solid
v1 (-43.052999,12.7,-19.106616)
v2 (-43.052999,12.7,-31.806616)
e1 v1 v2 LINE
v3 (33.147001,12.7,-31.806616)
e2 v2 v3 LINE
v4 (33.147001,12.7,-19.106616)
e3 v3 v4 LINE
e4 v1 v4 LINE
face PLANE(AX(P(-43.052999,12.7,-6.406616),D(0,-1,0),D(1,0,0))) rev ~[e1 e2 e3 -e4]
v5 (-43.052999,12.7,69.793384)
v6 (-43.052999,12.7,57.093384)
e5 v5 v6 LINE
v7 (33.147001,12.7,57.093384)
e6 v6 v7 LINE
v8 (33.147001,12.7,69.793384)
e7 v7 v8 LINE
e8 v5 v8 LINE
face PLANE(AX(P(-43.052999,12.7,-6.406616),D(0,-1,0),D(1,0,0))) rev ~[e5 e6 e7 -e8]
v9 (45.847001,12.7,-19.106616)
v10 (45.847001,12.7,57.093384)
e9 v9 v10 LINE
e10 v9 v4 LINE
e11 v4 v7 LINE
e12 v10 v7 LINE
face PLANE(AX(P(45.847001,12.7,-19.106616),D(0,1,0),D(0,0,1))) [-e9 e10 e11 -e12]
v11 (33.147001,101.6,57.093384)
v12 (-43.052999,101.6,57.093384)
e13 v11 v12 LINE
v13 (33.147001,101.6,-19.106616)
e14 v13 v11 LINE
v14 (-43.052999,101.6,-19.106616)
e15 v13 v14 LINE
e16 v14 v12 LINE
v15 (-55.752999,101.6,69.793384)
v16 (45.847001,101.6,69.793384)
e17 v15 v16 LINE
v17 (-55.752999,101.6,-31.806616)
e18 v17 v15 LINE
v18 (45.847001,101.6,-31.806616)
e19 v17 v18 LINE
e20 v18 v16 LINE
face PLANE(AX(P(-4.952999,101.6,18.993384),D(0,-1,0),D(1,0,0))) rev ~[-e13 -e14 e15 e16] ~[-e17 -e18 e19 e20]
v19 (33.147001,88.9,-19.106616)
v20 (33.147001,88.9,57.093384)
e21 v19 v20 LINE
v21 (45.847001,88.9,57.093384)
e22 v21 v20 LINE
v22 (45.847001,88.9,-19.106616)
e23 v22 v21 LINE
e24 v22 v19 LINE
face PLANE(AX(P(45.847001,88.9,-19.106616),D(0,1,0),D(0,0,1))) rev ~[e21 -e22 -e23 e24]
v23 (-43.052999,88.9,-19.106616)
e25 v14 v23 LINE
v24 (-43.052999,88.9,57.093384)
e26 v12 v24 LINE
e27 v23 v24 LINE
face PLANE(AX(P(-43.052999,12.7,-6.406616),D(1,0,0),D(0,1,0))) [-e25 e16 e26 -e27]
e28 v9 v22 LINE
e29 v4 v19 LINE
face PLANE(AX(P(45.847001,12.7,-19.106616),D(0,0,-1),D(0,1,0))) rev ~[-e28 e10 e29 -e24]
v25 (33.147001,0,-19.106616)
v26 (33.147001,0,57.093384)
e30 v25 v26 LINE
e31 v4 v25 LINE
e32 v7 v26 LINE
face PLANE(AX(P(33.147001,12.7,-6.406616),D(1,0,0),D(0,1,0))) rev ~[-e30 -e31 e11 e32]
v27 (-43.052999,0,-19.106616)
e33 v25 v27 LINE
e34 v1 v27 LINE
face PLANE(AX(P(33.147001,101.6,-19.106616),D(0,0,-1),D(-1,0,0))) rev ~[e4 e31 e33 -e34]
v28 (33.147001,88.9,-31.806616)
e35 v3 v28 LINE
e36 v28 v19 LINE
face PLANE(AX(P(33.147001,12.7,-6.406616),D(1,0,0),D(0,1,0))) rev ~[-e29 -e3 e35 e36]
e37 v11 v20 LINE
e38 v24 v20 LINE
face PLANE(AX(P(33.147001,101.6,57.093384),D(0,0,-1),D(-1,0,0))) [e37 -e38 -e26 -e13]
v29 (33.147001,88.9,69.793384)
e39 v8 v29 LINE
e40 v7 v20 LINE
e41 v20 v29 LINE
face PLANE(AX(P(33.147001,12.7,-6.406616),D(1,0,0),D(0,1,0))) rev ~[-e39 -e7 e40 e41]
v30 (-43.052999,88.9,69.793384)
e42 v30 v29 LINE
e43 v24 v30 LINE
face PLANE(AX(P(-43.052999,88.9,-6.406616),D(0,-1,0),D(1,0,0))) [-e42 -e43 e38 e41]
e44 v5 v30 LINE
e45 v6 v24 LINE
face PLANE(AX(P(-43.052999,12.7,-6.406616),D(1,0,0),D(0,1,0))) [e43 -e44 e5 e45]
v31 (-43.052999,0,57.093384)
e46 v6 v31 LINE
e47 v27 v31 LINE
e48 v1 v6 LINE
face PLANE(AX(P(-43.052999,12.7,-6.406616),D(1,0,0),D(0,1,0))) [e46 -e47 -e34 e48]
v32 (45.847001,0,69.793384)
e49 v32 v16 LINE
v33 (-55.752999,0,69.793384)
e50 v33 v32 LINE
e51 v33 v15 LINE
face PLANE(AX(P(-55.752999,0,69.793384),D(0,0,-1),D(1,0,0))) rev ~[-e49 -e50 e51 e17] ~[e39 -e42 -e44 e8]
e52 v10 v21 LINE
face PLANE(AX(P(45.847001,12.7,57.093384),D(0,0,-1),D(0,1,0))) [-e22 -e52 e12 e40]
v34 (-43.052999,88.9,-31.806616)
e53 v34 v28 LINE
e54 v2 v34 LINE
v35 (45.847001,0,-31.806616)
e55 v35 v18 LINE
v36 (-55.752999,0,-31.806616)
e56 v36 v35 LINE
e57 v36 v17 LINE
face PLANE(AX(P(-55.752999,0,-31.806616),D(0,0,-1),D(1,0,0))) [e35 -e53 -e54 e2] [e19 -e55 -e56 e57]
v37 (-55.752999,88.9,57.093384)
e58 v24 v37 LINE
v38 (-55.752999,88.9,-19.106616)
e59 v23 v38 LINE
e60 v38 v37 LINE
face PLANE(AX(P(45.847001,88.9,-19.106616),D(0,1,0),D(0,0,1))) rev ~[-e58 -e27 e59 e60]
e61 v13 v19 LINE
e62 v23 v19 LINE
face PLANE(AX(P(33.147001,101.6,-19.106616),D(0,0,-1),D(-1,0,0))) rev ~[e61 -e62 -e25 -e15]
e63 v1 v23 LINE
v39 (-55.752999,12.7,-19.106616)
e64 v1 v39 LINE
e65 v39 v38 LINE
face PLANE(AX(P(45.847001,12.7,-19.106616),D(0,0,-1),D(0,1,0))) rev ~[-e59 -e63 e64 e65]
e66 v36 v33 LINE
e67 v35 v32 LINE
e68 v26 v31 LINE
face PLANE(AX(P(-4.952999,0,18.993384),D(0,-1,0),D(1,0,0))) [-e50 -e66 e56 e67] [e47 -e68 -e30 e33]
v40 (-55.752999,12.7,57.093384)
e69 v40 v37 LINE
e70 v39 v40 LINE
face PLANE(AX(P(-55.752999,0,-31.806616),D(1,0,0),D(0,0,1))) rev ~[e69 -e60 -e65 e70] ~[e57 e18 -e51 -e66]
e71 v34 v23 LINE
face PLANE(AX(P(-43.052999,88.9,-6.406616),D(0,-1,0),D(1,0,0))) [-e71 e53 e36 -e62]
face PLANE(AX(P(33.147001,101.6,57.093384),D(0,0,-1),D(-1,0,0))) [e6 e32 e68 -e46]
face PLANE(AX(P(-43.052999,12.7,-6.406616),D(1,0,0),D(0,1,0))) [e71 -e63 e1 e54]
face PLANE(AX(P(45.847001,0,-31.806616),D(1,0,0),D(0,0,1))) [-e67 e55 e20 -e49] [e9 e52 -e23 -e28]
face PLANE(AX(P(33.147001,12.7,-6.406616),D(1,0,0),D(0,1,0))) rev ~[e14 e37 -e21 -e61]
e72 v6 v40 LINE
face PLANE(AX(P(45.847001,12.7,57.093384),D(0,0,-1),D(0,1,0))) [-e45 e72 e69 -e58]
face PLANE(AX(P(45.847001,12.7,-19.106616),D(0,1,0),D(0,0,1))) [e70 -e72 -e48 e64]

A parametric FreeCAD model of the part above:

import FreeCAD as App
import Part
import Sketcher
Q = App.Units.Quantity


def add_polygon(sketch, points):
    """Adds a closed chain of lines whose ends are joined by coincident constraints."""
    first, n = sketch.GeometryCount, len(points)
    for a, b in zip(points, points[1:] + points[:1]):
        sketch.addGeometry(Part.LineSegment(App.Vector(*a, 0), App.Vector(*b, 0)), False)
    for i in range(n):
        sketch.addConstraint(Sketcher.Constraint("Coincident", first + i, 2, first + (i + 1) % n, 1))

doc = App.newDocument("Part")
body = doc.addObject("PartDesign::Body", "Body")

# Sketch on XZ plane
sketch1 = doc.addObject("Sketcher::SketchObject", "Sketch")
body.addObject(sketch1)
sketch1.AttachmentSupport = (doc.XZ_Plane, [""])
sketch1.MapMode = "FlatFace"
add_polygon(sketch1, [(-55.752999, 69.793384), (-55.752999, -31.806616), (45.847001, -31.806616), (45.847001, 69.793384)])  # lines 0-3
sketch1.addConstraint(Sketcher.Constraint("Vertical", 0))
sketch1.addConstraint(Sketcher.Constraint("Horizontal", 1))
sketch1.addConstraint(Sketcher.Constraint("Vertical", 2))
sketch1.addConstraint(Sketcher.Constraint("Horizontal", 3))
sketch1.addConstraint(Sketcher.Constraint("Equal", 3, 0))
sketch1.addConstraint(Sketcher.Constraint("DistanceX", 1, 1, 1, 2, Q("4 in")))
sketch1.addConstraint(Sketcher.Constraint("DistanceX", 0, 2, -1, 1, Q("2.195 in")))
sketch1.addConstraint(Sketcher.Constraint("DistanceY", 0, 2, -1, 1, Q("31.806616 mm")))
pad1 = doc.addObject("PartDesign::Pad", "Pad")
body.addObject(pad1)
pad1.Profile = sketch1
pad1.Length = Q("4 in")
pad1.Reversed = True

# Sketch on XY plane
sketch2 = doc.addObject("Sketcher::SketchObject", "Sketch001")
body.addObject(sketch2)
sketch2.AttachmentSupport = (doc.XY_Plane, [""])
sketch2.MapMode = "FlatFace"
sketch2.AttachmentOffset = App.Placement(App.Vector(0, 0, 69.793384), App.Rotation())
add_polygon(sketch2, [(-43.052999, 88.9), (-43.052999, 12.7), (33.147001, 12.7), (33.147001, 88.9)])  # lines 0-3
sketch2.addConstraint(Sketcher.Constraint("Vertical", 0))
sketch2.addConstraint(Sketcher.Constraint("Horizontal", 1))
sketch2.addConstraint(Sketcher.Constraint("Vertical", 2))
sketch2.addConstraint(Sketcher.Constraint("Horizontal", 3))
sketch2.addConstraint(Sketcher.Constraint("Equal", 3, 0))
sketch2.addConstraint(Sketcher.Constraint("DistanceX", 1, 1, 1, 2, Q("3 in")))
sketch2.addConstraint(Sketcher.Constraint("DistanceY", -1, 1, 0, 2, Q("0.5 in")))
sketch2.addConstraint(Sketcher.Constraint("DistanceX", 0, 2, -1, 1, Q("1.695 in")))
pocket1 = doc.addObject("PartDesign::Pocket", "Pocket")
body.addObject(pocket1)
pocket1.Profile = sketch2
pocket1.Length = Q("3 in")

# Sketch on XY plane
sketch3 = doc.addObject("Sketcher::SketchObject", "Sketch002")
body.addObject(sketch3)
sketch3.AttachmentSupport = (doc.XY_Plane, [""])
sketch3.MapMode = "FlatFace"
sketch3.AttachmentOffset = App.Placement(App.Vector(0, 0, -6.406616), App.Rotation())
add_polygon(sketch3, [(-43.052999, 88.9), (-43.052999, 12.7), (33.147001, 12.7), (33.147001, 88.9)])  # lines 0-3
sketch3.addConstraint(Sketcher.Constraint("Vertical", 0))
sketch3.addConstraint(Sketcher.Constraint("Horizontal", 1))
sketch3.addConstraint(Sketcher.Constraint("Vertical", 2))
sketch3.addConstraint(Sketcher.Constraint("Horizontal", 3))
sketch3.addConstraint(Sketcher.Constraint("Equal", 3, 0))
sketch3.addConstraint(Sketcher.Constraint("DistanceX", 1, 1, 1, 2, Q("3 in")))
sketch3.addConstraint(Sketcher.Constraint("DistanceY", -1, 1, 0, 2, Q("0.5 in")))
sketch3.addConstraint(Sketcher.Constraint("DistanceX", 0, 2, -1, 1, Q("1.695 in")))
pocket2 = doc.addObject("PartDesign::Pocket", "Pocket001")
body.addObject(pocket2)
pocket2.Profile = sketch3
pocket2.Length = Q("1 in")

# Sketch on XZ plane
sketch4 = doc.addObject("Sketcher::SketchObject", "Sketch003")
body.addObject(sketch4)
sketch4.AttachmentSupport = (doc.XZ_Plane, [""])
sketch4.MapMode = "FlatFace"
sketch4.AttachmentOffset = App.Placement(App.Vector(0, 0, -4 * 25.4), App.Rotation())
add_polygon(sketch4, [(33.147001, 57.093384), (33.147001, -19.106616), (-43.052999, -19.106616), (-43.052999, 57.093384)])  # lines 0-3
sketch4.addConstraint(Sketcher.Constraint("Vertical", 0))
sketch4.addConstraint(Sketcher.Constraint("Horizontal", 1))
sketch4.addConstraint(Sketcher.Constraint("Vertical", 2))
sketch4.addConstraint(Sketcher.Constraint("Horizontal", 3))
sketch4.addConstraint(Sketcher.Constraint("Equal", 3, 0))
sketch4.addConstraint(Sketcher.Constraint("DistanceX", 1, 2, 1, 1, Q("3 in")))
sketch4.addConstraint(Sketcher.Constraint("DistanceX", -1, 1, 0, 2, Q("1.305 in")))
sketch4.addConstraint(Sketcher.Constraint("DistanceY", 0, 2, -1, 1, Q("19.106616 mm")))
pocket3 = doc.addObject("PartDesign::Pocket", "Pocket002")
body.addObject(pocket3)
pocket3.Profile = sketch4
pocket3.Length = Q("4 in")
pocket3.Reversed = True

# Sketch on YZ plane
sketch5 = doc.addObject("Sketcher::SketchObject", "Sketch004")
body.addObject(sketch5)
sketch5.AttachmentSupport = (doc.YZ_Plane, [""])
sketch5.MapMode = "FlatFace"
sketch5.AttachmentOffset = App.Placement(App.Vector(0, 0, 1.805 * 25.4), App.Rotation())
add_polygon(sketch5, [(12.7, 57.093384), (12.7, -19.106616), (88.9, -19.106616), (88.9, 57.093384)])  # lines 0-3
sketch5.addConstraint(Sketcher.Constraint("Vertical", 0))
sketch5.addConstraint(Sketcher.Constraint("Horizontal", 1))
sketch5.addConstraint(Sketcher.Constraint("Vertical", 2))
sketch5.addConstraint(Sketcher.Constraint("Horizontal", 3))
sketch5.addConstraint(Sketcher.Constraint("Equal", 3, 0))
sketch5.addConstraint(Sketcher.Constraint("DistanceX", 1, 1, 1, 2, Q("3 in")))
sketch5.addConstraint(Sketcher.Constraint("DistanceX", -1, 1, 0, 2, Q("0.5 in")))
sketch5.addConstraint(Sketcher.Constraint("DistanceY", 0, 2, -1, 1, Q("19.106616 mm")))
pocket4 = doc.addObject("PartDesign::Pocket", "Pocket003")
body.addObject(pocket4)
pocket4.Profile = sketch5
pocket4.Length = Q("4 in")

doc.recompute()
